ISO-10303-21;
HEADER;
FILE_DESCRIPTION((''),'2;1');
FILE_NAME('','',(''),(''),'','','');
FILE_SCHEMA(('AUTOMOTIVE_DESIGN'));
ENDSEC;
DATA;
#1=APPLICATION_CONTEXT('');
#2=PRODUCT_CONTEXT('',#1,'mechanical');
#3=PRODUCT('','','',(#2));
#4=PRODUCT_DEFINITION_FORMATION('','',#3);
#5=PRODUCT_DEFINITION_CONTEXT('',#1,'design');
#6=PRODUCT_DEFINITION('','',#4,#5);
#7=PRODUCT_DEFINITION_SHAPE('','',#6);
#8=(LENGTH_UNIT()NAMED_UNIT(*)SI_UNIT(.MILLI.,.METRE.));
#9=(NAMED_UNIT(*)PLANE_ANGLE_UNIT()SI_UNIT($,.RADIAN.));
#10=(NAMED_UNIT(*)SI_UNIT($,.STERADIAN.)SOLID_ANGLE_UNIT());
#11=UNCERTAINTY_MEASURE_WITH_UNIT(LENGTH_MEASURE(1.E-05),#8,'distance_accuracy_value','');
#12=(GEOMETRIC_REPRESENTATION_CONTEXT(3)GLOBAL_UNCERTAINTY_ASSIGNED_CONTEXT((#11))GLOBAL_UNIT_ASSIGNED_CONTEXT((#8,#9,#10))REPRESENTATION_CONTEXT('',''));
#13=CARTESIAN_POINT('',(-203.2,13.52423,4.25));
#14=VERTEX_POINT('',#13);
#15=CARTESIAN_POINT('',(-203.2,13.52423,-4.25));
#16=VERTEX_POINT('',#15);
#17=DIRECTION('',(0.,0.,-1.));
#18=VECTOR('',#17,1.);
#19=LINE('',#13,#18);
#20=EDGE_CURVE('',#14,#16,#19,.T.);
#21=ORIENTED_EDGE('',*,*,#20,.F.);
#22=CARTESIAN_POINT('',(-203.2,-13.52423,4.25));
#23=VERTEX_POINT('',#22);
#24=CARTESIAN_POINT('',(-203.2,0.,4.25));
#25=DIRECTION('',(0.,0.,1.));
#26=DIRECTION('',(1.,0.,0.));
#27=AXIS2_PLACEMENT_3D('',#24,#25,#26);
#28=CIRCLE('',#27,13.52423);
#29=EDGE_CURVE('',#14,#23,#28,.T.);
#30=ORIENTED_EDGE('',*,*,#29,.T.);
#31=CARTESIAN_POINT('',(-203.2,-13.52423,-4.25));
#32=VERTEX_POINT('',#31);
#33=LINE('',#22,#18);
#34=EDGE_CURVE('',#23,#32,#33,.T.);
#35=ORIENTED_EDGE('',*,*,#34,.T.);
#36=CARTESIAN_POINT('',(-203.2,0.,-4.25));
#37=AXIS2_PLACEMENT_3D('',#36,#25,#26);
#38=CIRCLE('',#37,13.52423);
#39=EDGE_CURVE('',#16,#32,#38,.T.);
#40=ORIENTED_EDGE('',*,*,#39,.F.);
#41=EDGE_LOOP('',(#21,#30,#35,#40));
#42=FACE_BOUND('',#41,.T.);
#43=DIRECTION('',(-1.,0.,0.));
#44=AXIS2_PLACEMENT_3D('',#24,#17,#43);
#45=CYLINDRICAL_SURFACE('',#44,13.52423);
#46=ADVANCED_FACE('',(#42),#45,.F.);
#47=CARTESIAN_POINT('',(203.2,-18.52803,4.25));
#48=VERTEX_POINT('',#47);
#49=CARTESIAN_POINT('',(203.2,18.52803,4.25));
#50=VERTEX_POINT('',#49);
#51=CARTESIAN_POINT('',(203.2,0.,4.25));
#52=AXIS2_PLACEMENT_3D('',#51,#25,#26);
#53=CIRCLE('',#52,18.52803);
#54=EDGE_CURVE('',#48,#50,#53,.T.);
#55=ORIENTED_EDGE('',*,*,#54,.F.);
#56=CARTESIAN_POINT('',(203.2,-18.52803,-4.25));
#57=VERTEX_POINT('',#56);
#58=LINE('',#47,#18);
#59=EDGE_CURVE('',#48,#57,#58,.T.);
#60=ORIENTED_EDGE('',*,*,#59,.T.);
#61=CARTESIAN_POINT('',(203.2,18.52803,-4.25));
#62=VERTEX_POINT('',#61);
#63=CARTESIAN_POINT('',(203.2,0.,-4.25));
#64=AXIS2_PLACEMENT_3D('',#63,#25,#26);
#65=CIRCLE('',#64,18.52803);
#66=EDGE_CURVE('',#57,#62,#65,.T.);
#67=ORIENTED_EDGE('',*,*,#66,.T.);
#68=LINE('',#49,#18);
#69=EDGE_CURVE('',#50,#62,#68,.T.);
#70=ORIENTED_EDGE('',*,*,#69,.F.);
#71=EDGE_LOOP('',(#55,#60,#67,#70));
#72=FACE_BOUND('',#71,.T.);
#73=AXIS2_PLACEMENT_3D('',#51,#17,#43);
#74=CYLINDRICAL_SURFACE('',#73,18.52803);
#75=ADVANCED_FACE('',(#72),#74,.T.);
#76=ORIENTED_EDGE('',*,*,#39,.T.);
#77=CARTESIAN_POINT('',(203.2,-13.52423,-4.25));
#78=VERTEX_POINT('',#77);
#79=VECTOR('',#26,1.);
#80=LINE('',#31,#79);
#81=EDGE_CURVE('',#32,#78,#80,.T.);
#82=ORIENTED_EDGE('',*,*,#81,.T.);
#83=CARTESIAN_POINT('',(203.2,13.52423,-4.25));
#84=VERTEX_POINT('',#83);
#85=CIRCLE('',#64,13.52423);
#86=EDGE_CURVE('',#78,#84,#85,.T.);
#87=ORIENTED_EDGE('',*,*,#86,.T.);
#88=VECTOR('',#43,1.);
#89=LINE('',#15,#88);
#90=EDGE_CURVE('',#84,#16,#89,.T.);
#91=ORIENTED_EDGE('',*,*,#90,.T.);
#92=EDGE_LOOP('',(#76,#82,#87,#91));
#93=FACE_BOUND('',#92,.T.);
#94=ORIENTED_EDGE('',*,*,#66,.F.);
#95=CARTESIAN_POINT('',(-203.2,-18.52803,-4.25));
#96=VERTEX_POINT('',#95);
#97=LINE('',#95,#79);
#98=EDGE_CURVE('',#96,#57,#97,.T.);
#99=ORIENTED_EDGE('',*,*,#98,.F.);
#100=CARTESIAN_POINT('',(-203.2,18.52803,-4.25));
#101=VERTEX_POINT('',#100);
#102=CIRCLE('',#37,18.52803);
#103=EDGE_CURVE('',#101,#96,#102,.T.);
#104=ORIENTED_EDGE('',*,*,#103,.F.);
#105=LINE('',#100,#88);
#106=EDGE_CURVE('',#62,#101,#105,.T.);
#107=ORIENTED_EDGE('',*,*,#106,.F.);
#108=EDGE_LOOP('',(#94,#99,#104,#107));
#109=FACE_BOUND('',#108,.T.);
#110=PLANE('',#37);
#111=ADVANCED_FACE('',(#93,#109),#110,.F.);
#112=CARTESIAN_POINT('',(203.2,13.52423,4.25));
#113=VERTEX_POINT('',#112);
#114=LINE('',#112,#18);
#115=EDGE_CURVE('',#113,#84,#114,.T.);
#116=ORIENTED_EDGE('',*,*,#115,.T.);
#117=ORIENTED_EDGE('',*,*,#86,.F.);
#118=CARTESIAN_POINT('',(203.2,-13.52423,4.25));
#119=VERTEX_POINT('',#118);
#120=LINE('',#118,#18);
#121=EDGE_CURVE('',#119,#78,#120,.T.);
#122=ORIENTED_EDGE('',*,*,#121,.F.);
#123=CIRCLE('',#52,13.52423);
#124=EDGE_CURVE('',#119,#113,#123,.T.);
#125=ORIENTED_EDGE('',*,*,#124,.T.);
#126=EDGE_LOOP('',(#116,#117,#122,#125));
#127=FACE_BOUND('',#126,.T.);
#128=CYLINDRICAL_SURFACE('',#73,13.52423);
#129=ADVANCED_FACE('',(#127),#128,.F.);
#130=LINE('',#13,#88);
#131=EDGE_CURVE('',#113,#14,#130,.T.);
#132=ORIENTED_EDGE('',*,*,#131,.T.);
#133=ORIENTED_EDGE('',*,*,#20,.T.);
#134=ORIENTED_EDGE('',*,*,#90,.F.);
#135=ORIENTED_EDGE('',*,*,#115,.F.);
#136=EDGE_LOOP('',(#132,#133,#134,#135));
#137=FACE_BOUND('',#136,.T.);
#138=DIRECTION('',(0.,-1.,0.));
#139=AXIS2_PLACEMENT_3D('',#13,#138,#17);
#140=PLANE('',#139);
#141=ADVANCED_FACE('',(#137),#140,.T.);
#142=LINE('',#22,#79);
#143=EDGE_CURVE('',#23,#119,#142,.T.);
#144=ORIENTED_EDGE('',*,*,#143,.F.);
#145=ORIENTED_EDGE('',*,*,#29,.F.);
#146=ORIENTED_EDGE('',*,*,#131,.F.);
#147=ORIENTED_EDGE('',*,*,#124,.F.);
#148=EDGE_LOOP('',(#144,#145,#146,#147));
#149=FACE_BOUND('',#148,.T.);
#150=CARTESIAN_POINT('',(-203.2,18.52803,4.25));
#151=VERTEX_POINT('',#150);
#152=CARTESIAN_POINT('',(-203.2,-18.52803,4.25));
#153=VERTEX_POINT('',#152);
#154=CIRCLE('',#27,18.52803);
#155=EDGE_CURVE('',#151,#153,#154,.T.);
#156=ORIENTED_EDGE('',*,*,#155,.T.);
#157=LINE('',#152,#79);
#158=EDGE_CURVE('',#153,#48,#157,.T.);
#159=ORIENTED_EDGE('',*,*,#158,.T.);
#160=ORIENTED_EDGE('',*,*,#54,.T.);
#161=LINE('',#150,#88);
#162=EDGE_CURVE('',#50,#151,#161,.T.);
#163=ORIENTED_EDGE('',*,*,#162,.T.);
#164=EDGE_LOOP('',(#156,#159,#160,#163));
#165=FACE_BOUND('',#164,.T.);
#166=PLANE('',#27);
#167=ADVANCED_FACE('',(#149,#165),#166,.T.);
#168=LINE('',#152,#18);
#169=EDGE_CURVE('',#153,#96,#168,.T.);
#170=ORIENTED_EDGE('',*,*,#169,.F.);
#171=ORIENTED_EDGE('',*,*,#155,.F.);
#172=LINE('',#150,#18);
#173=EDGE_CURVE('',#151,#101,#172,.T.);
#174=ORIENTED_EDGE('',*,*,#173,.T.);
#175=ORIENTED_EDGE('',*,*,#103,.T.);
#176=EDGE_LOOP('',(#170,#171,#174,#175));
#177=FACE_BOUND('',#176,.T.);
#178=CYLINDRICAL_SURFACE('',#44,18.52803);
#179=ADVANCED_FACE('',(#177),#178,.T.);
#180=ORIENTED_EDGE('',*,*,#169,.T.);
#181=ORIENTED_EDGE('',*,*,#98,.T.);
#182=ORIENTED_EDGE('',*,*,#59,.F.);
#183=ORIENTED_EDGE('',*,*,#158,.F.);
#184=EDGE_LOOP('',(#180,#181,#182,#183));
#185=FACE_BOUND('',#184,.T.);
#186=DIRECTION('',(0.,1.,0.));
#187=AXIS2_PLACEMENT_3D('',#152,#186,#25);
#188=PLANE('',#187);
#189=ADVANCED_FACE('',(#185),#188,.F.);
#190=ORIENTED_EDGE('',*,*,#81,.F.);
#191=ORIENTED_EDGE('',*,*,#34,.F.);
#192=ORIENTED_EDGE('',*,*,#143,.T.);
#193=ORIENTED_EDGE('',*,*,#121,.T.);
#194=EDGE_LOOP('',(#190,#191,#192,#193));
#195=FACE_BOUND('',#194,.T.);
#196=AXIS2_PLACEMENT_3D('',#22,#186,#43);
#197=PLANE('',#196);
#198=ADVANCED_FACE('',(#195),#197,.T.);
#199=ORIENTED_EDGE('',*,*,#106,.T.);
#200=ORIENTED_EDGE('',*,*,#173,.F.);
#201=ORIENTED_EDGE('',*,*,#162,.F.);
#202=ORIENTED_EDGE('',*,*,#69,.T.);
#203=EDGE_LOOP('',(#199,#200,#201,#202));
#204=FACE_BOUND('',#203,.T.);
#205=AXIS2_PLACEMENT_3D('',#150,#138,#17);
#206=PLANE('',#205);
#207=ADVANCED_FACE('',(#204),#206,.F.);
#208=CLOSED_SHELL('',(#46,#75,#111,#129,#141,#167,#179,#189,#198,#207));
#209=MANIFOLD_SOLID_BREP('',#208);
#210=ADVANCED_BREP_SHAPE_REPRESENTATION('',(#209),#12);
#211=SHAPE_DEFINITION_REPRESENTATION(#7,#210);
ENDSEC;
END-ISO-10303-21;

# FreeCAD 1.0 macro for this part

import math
import FreeCAD as App
import Part
import Sketcher
Q = App.Units.Quantity

doc = App.newDocument("Part")
params = doc.addObject("Spreadsheet::Sheet", "Params")
for row, (alias, value) in enumerate([
    ("sketch1_width", "16 in"),
    ("pad1_length", "8.5 mm"),
], start=1):
    params.set(f"A{row}", alias)
    params.set(f"B{row}", "=" + value)
    params.setAlias(f"B{row}", alias)

body = doc.addObject("PartDesign::Body", "Body")

# Sketch on XY plane
sketch1 = body.newObject("Sketcher::SketchObject", "Sketch")
sketch1.AttachmentSupport = (doc.getObject("XY_Plane"), [""])
sketch1.MapMode = "FlatFace"
sketch1.addGeometry([
    Part.LineSegment(App.Vector(203, 19, 0), App.Vector(-203, 19, 0)),  # 0
    Part.ArcOfCircle(Part.Circle(App.Vector(-203, 0, 0), App.Vector(0, 0, 1), 19), math.radians(90), math.radians(270)),  # 1
    Part.LineSegment(App.Vector(-203, -19, 0), App.Vector(203, -19, 0)),  # 2
    Part.ArcOfCircle(Part.Circle(App.Vector(203, 0, 0), App.Vector(0, 0, 1), 19), math.radians(-90), math.radians(90)),  # 3
    Part.LineSegment(App.Vector(-203, 14, 0), App.Vector(203, 14, 0)),  # 4
    Part.ArcOfCircle(Part.Circle(App.Vector(203, 0, 0), App.Vector(0, 0, 1), 14), math.radians(-90), math.radians(90)),  # 5
    Part.LineSegment(App.Vector(203, -14, 0), App.Vector(-203, -14, 0)),  # 6
    Part.ArcOfCircle(Part.Circle(App.Vector(-203, 0, 0), App.Vector(0, 0, 1), 14), math.radians(90), math.radians(270)),  # 7
], False)
sketch1.addConstraint([
    Sketcher.Constraint("Tangent", 0, 2, 1, 1),
    Sketcher.Constraint("Tangent", 1, 2, 2, 1),
    Sketcher.Constraint("Tangent", 2, 2, 3, 1),
    Sketcher.Constraint("Tangent", 3, 2, 0, 1),
    Sketcher.Constraint("Tangent", 4, 2, 5, 2),
    Sketcher.Constraint("Tangent", 5, 1, 6, 1),
    Sketcher.Constraint("Tangent", 6, 2, 7, 2),
    Sketcher.Constraint("Tangent", 7, 1, 4, 1),
    Sketcher.Constraint("Horizontal", 0),
    Sketcher.Constraint("Horizontal", 2),
    Sketcher.Constraint("Horizontal", 4),
    Sketcher.Constraint("Horizontal", 6),
    Sketcher.Constraint("Coincident", 5, 3, 3, 3),
    Sketcher.Constraint("Symmetric", 1, 3, 3, 3, -1, 1),
    Sketcher.Constraint("Vertical", 7, 3, 0, 2),
    Sketcher.Constraint("DistanceX", 0, 2, 0, 1, Q("16 in")),
    Sketcher.Constraint("Radius", 1, 18.52803),
    Sketcher.Constraint("Radius", 5, 13.52423),
])
sketch1.setExpression("Constraints[15]", "Params.sketch1_width")
pad1 = body.newObject("PartDesign::Pad", "Pad")
pad1.Profile = sketch1
pad1.setExpression("Length", "Params.pad1_length")
pad1.Midplane = True

doc.recompute()
